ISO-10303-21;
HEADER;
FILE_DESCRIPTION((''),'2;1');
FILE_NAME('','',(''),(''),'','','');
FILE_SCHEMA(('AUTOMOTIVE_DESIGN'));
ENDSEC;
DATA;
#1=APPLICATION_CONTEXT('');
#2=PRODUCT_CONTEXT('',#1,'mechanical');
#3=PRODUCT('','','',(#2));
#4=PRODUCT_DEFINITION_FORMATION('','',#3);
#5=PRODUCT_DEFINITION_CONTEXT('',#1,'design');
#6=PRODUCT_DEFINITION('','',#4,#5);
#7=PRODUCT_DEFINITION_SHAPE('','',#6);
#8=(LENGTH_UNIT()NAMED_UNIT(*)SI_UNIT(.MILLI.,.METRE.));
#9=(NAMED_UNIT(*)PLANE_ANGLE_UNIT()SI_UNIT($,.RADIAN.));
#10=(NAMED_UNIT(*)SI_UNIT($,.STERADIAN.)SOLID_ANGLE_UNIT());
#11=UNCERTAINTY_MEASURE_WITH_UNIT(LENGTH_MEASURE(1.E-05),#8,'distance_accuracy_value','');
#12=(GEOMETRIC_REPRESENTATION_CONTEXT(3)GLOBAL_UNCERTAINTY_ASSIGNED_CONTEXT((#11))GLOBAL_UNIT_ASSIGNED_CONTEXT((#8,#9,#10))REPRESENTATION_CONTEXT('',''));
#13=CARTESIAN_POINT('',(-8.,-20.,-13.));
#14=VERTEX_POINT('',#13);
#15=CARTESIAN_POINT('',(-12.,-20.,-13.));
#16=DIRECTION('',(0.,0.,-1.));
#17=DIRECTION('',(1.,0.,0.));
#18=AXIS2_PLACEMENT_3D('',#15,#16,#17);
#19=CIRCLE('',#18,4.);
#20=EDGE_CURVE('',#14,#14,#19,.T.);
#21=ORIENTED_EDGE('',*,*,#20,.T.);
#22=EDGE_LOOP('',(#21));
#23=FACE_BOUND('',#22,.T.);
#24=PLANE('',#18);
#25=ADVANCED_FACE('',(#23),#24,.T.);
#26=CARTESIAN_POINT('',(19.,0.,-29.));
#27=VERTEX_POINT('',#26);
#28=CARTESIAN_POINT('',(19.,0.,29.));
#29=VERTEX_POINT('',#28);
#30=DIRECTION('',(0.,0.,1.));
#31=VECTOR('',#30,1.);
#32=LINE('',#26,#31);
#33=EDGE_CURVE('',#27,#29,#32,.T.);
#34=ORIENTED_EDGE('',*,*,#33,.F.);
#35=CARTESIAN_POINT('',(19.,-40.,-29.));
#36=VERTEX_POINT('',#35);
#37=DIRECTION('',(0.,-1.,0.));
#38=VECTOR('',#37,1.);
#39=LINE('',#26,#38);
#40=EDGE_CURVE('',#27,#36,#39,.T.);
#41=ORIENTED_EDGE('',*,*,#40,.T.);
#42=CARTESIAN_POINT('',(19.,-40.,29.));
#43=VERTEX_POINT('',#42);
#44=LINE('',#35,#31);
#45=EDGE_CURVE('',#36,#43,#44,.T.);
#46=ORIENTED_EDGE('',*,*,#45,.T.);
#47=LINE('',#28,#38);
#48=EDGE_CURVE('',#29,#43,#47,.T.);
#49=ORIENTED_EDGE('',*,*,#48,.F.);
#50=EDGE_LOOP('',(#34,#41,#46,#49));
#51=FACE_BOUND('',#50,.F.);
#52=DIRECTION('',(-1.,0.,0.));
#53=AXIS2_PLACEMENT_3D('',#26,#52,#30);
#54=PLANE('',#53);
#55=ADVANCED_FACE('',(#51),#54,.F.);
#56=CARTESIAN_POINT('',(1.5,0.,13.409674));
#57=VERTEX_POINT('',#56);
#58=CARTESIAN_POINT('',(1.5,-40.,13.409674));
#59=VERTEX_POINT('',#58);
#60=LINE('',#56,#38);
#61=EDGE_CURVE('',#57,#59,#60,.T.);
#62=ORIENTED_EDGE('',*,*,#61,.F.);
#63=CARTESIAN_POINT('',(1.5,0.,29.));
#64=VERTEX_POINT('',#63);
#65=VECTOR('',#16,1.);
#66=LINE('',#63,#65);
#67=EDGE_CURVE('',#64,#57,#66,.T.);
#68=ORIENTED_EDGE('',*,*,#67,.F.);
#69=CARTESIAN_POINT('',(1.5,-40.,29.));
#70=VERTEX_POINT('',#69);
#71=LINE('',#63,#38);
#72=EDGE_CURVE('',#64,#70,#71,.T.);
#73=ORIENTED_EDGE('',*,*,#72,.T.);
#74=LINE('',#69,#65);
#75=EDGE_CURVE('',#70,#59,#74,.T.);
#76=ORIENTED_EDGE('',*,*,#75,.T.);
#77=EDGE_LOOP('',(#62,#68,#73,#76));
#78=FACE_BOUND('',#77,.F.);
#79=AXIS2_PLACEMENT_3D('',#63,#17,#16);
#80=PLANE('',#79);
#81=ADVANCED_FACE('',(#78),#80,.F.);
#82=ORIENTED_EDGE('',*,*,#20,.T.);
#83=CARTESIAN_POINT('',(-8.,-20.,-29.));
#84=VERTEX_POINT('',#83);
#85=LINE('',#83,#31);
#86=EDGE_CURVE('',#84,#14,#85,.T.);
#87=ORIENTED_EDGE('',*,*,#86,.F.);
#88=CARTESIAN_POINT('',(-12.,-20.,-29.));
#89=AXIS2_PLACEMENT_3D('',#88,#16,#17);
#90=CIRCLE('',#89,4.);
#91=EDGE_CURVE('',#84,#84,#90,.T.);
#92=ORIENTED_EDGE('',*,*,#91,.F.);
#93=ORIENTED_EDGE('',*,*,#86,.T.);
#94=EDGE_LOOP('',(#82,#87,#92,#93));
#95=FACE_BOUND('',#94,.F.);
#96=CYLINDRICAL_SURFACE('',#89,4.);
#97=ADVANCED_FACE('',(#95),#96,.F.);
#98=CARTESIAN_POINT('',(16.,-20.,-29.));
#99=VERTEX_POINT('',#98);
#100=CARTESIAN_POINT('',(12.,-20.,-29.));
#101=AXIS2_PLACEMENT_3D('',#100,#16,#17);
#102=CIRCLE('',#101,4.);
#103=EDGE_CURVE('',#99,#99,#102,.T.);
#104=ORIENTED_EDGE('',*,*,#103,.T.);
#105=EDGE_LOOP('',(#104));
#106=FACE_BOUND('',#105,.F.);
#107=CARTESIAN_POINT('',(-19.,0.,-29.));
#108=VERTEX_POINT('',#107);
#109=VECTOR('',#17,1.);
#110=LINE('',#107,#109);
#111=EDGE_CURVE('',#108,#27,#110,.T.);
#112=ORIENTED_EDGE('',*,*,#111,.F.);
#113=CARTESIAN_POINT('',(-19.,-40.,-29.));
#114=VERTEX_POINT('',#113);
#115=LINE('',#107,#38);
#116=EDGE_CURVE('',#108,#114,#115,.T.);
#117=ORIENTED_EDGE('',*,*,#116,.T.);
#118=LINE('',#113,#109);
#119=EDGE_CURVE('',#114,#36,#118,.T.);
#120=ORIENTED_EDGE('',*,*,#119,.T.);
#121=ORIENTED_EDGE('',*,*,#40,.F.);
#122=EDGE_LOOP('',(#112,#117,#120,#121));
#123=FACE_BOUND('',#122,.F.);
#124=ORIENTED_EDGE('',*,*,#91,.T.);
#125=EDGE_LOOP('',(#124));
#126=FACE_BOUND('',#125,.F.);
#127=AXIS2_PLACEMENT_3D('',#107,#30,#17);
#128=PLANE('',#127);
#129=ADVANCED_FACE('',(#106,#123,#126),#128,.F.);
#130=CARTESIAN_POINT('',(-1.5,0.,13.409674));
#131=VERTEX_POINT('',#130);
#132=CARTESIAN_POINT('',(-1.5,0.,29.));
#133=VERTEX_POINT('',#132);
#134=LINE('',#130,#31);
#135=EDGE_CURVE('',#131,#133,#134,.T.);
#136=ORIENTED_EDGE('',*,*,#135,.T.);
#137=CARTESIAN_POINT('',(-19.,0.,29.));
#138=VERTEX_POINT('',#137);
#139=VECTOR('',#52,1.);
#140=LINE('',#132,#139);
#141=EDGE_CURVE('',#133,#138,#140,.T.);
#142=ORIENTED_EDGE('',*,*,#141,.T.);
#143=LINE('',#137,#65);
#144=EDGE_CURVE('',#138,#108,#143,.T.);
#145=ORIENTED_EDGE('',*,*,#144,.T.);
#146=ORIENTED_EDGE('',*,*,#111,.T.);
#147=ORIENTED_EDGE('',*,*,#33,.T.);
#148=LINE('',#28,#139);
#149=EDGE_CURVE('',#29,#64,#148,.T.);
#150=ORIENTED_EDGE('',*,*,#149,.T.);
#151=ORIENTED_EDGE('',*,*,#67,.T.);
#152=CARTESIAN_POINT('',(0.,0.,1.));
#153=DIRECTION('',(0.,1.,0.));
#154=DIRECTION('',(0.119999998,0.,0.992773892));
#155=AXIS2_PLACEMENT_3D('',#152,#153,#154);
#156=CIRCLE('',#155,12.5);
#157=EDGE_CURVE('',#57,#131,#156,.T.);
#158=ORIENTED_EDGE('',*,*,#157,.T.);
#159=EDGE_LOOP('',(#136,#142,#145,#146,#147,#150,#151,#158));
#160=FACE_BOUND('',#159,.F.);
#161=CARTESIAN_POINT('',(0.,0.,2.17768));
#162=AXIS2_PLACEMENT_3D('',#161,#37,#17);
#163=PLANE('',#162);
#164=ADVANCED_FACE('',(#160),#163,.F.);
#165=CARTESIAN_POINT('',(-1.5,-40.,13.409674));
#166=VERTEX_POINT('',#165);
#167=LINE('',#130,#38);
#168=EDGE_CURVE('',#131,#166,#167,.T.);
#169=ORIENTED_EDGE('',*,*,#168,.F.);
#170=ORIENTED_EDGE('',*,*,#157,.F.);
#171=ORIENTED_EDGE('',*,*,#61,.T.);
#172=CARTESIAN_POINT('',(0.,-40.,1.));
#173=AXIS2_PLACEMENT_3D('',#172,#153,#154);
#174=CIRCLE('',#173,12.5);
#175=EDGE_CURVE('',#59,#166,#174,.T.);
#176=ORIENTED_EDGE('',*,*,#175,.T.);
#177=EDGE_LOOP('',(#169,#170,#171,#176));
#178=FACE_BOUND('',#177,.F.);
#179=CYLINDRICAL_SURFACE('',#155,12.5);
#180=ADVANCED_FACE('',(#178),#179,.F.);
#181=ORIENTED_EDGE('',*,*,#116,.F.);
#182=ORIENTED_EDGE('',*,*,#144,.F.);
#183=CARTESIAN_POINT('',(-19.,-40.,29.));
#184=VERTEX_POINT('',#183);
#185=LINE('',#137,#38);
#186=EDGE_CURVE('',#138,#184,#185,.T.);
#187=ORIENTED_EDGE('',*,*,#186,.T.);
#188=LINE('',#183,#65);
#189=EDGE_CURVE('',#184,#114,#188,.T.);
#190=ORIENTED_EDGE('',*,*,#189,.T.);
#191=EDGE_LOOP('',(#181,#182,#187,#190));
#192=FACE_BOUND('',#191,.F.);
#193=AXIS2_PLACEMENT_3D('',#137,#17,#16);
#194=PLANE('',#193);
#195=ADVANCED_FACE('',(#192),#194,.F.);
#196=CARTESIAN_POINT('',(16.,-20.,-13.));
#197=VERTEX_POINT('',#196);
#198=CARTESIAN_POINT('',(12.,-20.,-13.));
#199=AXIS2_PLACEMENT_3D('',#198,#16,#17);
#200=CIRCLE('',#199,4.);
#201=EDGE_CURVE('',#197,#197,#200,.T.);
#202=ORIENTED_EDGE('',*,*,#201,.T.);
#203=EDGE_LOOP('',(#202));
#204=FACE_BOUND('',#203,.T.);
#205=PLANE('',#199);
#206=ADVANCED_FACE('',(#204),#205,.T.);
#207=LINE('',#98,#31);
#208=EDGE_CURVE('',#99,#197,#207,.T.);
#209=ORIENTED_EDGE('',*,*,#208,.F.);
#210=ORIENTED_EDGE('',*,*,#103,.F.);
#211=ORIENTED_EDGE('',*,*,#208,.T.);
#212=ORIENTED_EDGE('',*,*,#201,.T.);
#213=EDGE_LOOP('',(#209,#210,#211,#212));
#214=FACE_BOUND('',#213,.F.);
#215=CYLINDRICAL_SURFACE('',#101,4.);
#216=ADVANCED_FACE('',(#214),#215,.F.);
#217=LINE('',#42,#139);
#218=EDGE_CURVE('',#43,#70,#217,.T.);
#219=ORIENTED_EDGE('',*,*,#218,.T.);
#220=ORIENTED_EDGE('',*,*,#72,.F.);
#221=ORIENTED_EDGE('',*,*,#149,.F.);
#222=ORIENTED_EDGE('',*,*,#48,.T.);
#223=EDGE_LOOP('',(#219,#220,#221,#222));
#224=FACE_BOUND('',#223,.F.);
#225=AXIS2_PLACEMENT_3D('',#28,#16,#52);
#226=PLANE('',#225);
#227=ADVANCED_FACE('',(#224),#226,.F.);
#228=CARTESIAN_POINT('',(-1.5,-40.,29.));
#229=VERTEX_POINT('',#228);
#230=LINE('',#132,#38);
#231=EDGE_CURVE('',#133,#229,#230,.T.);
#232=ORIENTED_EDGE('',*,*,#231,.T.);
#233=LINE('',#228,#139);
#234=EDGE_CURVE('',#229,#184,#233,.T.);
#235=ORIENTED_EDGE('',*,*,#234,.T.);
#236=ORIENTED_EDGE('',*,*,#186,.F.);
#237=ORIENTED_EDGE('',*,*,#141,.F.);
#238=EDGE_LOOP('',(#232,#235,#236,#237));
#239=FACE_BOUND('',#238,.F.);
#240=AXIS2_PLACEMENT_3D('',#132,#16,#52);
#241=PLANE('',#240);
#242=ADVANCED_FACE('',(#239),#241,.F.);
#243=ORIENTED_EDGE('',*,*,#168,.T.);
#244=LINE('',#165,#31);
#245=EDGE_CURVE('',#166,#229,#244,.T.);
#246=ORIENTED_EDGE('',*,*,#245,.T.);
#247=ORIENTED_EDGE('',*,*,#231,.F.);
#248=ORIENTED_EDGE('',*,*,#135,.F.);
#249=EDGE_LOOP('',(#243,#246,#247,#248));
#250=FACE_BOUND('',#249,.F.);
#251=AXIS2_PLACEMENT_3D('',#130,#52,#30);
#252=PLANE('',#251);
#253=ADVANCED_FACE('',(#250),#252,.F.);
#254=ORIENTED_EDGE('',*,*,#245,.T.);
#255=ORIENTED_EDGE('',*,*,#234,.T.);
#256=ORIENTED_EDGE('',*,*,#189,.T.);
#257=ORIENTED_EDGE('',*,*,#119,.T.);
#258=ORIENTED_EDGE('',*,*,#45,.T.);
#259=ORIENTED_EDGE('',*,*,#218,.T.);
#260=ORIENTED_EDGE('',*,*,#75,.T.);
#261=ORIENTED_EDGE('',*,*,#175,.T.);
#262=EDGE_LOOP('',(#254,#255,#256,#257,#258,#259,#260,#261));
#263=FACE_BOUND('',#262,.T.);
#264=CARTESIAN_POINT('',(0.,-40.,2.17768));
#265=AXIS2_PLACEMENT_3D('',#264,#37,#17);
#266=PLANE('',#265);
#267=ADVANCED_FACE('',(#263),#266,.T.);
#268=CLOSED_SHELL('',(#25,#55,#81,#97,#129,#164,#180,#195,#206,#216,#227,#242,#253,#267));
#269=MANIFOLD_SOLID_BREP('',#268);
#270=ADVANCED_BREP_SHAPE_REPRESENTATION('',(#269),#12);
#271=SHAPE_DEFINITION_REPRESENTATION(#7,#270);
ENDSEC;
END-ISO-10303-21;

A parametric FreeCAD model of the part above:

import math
import FreeCAD as App
import Part
import Sketcher

V = App.Vector
Q = App.Units.Quantity

doc = App.newDocument("Part")
body = doc.addObject("PartDesign::Body", "Body")

# Sketch on XZ plane
sketch1 = doc.addObject("Sketcher::SketchObject", "Sketch")
body.addObject(sketch1)
sketch1.AttachmentSupport = (doc.XZ_Plane, [""])
sketch1.MapMode = "FlatFace"
sketch1.addGeometry(Part.LineSegment(V(19, -29, 0), V(19, 29, 0)), False)
sketch1.addGeometry(Part.LineSegment(V(19, 29, 0), V(1.5, 29, 0)), False)
sketch1.addGeometry(Part.LineSegment(V(1.5, 29, 0), V(1.5, 13.409674, 0)), False)
sketch1.addGeometry(Part.ArcOfCircle(Part.Circle(V(0, 1, 0), V(0, 0, 1), 12.5), math.radians(96.892102), math.radians(443.107898)), False)
sketch1.addGeometry(Part.LineSegment(V(-1.5, 13.409674, 0), V(-1.5, 29, 0)), False)
sketch1.addGeometry(Part.LineSegment(V(-1.5, 29, 0), V(-19, 29, 0)), False)
sketch1.addGeometry(Part.LineSegment(V(-19, 29, 0), V(-19, -29, 0)), False)
sketch1.addGeometry(Part.LineSegment(V(-19, -29, 0), V(19, -29, 0)), False)
sketch1.addConstraint(Sketcher.Constraint("Coincident", 0, 2, 1, 1))
sketch1.addConstraint(Sketcher.Constraint("Coincident", 1, 2, 2, 1))
sketch1.addConstraint(Sketcher.Constraint("Coincident", 2, 2, 3, 2))
sketch1.addConstraint(Sketcher.Constraint("Coincident", 3, 1, 4, 1))
sketch1.addConstraint(Sketcher.Constraint("Coincident", 4, 2, 5, 1))
sketch1.addConstraint(Sketcher.Constraint("Coincident", 5, 2, 6, 1))
sketch1.addConstraint(Sketcher.Constraint("Coincident", 6, 2, 7, 1))
sketch1.addConstraint(Sketcher.Constraint("Coincident", 7, 2, 0, 1))
sketch1.addConstraint(Sketcher.Constraint("Vertical", 0))
sketch1.addConstraint(Sketcher.Constraint("Horizontal", 1))
sketch1.addConstraint(Sketcher.Constraint("Vertical", 2))
sketch1.addConstraint(Sketcher.Constraint("Vertical", 4))
sketch1.addConstraint(Sketcher.Constraint("Horizontal", 5))
sketch1.addConstraint(Sketcher.Constraint("Vertical", 6))
sketch1.addConstraint(Sketcher.Constraint("Horizontal", 7))
sketch1.addConstraint(Sketcher.Constraint("Symmetric", 0, 2, 6, 2, -1, 1))
sketch1.addConstraint(Sketcher.Constraint("Symmetric", 2, 2, 3, 1, -2))
sketch1.addConstraint(Sketcher.Constraint("Horizontal", 1, 2, 4, 2))
sketch1.addConstraint(Sketcher.Constraint("Radius", 3, Q("12.5 mm")))
sketch1.addConstraint(Sketcher.Constraint("DistanceX", 7, 1, 7, 2, Q("38 mm")))
sketch1.addConstraint(Sketcher.Constraint("DistanceY", 0, 1, 0, 2, Q("58 mm")))
sketch1.addConstraint(Sketcher.Constraint("DistanceX", 1, 2, 1, 1, Q("17.5 mm")))
sketch1.addConstraint(Sketcher.Constraint("DistanceY", -1, 1, 3, 3, Q("1 mm")))
pad1 = doc.addObject("PartDesign::Pad", "Pad")
body.addObject(pad1)
pad1.Profile = sketch1
pad1.Length = 40

# Sketch on XY plane
sketch2 = doc.addObject("Sketcher::SketchObject", "Sketch001")
body.addObject(sketch2)
sketch2.AttachmentSupport = (doc.XY_Plane, [""])
sketch2.MapMode = "FlatFace"
sketch2.AttachmentOffset = App.Placement(V(0, 0, -29), App.Rotation())
sketch2.addGeometry(Part.Circle(V(-12, -20, 0), V(0, 0, 1), 4), False)
sketch2.addGeometry(Part.Circle(V(12, -20, 0), V(0, 0, 1), 4), False)
sketch2.addConstraint(Sketcher.Constraint("Equal", 0, 1))
sketch2.addConstraint(Sketcher.Constraint("Symmetric", 0, 3, 1, 3, -2))
sketch2.addConstraint(Sketcher.Constraint("Diameter", 0, Q("8 mm")))
sketch2.addConstraint(Sketcher.Constraint("DistanceX", 0, 3, -1, 1, Q("12 mm")))
sketch2.addConstraint(Sketcher.Constraint("DistanceY", 0, 3, -1, 1, Q("20 mm")))
pocket1 = doc.addObject("PartDesign::Pocket", "Pocket")
body.addObject(pocket1)
pocket1.Profile = sketch2
pocket1.Length = 16
pocket1.Reversed = True

doc.recompute()
